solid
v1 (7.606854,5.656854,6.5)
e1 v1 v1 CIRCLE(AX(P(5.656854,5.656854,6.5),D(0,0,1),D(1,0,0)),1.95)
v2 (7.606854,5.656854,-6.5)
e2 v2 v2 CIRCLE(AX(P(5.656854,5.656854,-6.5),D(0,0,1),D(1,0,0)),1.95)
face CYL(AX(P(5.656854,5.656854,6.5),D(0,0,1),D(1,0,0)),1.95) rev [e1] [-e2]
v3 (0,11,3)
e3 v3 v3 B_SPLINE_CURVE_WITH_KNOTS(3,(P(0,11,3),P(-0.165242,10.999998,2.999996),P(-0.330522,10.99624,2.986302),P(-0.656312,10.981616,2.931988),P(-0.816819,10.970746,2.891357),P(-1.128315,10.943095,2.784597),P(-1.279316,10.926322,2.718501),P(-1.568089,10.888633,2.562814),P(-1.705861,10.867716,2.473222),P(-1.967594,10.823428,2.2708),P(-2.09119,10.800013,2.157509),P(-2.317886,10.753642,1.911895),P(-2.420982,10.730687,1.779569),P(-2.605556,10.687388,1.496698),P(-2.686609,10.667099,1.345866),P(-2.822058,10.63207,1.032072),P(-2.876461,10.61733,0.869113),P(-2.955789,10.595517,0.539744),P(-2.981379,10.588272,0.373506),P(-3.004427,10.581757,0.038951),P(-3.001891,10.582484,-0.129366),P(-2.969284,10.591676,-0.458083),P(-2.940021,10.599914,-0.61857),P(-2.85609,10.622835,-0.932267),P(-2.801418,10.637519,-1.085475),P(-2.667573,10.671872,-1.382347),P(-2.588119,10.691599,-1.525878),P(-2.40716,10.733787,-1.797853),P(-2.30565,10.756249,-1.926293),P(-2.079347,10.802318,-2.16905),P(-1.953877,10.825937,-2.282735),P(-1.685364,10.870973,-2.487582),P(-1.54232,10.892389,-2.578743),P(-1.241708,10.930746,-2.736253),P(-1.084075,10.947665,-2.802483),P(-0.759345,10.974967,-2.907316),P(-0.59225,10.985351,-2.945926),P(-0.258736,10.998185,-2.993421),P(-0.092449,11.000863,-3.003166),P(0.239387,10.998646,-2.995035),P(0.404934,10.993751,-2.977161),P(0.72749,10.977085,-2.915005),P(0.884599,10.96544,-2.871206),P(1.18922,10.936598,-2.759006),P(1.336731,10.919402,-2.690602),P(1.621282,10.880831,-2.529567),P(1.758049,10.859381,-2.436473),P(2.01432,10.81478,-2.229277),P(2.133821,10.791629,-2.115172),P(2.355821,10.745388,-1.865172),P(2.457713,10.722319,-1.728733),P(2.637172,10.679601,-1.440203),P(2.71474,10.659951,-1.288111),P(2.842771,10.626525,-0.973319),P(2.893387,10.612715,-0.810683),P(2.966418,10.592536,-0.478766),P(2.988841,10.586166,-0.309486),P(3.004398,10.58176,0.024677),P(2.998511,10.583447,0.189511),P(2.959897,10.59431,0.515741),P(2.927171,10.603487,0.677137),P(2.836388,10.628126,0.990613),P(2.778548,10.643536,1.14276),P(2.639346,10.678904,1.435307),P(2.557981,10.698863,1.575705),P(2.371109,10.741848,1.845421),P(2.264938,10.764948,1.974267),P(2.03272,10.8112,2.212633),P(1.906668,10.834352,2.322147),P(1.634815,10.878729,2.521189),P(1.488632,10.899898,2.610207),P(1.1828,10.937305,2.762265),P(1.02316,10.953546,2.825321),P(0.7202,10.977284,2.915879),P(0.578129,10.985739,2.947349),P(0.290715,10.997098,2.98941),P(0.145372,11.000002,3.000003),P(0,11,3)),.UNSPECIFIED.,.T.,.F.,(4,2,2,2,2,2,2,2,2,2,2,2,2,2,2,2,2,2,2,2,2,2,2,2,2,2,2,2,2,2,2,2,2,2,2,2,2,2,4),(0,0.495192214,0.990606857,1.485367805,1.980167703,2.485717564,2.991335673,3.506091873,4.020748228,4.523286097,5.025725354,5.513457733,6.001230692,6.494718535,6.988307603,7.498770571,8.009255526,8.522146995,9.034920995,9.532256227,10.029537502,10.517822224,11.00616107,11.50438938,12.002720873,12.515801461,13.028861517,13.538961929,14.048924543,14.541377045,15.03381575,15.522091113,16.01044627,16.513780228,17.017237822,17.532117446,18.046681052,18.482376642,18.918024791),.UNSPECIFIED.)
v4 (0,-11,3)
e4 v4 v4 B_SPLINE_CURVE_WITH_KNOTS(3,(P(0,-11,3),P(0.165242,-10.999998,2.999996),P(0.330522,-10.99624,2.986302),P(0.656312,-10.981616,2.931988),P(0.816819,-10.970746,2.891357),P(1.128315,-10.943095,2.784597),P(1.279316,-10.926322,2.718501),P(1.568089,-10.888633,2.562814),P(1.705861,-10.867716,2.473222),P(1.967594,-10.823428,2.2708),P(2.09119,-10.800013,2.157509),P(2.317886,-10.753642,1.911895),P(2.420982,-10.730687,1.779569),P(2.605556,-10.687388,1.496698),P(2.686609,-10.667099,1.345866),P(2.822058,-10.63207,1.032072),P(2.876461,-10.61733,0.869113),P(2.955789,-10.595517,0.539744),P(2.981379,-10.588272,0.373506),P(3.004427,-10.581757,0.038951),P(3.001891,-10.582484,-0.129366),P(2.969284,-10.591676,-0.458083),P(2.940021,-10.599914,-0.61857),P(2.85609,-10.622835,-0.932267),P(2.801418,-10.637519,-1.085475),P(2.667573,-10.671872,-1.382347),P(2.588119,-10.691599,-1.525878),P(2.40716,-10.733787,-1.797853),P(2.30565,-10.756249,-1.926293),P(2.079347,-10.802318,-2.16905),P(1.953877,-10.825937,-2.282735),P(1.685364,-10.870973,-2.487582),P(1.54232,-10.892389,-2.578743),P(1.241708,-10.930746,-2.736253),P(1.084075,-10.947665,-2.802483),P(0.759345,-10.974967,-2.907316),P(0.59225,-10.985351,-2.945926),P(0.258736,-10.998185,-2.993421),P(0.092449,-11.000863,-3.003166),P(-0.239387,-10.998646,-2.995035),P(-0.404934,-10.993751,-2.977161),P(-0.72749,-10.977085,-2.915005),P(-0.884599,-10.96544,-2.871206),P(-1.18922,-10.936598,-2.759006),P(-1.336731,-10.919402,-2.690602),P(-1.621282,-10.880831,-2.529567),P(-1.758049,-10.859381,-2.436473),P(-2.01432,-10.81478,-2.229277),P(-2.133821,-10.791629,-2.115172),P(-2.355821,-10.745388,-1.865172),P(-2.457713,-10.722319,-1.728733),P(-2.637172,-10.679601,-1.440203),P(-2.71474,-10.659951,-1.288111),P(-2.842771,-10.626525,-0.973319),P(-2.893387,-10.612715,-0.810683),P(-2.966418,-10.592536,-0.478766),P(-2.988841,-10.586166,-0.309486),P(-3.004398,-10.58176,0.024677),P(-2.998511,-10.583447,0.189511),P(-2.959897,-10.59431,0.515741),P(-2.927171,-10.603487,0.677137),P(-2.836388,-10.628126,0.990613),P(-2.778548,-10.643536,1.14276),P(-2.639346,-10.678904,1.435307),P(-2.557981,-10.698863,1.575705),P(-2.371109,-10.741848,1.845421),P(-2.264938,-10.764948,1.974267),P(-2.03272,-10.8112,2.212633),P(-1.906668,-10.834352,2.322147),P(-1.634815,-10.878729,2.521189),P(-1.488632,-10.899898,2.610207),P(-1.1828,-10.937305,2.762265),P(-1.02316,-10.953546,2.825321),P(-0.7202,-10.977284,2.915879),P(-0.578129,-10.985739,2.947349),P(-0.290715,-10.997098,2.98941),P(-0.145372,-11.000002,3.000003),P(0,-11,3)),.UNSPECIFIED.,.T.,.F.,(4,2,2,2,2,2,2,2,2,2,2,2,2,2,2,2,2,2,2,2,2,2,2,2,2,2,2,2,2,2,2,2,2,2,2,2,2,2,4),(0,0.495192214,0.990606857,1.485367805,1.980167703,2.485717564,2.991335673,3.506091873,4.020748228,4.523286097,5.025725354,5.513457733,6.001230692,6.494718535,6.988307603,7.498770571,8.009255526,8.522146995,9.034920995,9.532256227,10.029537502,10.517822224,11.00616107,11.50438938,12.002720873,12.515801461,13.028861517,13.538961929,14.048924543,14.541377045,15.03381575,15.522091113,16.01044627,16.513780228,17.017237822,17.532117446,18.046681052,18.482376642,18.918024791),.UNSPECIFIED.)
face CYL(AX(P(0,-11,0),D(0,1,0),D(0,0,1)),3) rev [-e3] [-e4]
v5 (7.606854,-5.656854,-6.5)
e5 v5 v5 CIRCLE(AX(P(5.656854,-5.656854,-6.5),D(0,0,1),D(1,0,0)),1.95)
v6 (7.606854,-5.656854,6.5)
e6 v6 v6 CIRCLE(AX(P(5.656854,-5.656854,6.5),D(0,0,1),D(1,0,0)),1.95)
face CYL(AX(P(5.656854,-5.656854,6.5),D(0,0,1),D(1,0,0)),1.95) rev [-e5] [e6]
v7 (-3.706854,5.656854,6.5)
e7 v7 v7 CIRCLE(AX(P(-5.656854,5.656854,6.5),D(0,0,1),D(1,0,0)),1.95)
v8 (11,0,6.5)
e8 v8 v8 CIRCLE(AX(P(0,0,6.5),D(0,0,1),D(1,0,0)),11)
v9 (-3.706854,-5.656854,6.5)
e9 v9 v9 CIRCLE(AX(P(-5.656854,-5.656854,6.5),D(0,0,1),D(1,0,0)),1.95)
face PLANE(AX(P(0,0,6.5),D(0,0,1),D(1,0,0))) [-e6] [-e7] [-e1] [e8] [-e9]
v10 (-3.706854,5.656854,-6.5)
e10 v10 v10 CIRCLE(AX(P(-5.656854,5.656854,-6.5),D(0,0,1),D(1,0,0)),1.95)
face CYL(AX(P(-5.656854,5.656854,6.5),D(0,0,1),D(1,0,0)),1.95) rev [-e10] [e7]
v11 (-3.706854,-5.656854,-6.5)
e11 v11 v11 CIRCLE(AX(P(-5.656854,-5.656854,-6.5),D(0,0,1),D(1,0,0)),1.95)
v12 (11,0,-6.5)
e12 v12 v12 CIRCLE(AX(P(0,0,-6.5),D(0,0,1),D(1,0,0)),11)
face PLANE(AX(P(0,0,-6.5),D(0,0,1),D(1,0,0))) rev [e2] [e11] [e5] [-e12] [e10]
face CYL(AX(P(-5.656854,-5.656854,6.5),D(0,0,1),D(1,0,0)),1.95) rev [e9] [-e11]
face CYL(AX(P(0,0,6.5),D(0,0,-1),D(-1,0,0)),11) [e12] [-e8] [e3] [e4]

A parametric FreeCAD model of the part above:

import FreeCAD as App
import Part
import Sketcher

V = App.Vector
Q = App.Units.Quantity

doc = App.newDocument("Part")
body = doc.addObject("PartDesign::Body", "Body")

sketch1 = body.newObject("Sketcher::SketchObject", "Sketch")
sketch1.AttachmentSupport = (doc.getObject("XY_Plane"), [""])
sketch1.MapMode = "FlatFace"
sketch1.addGeometry(Part.Circle(V(0, 0, 0), V(0, 0, 1), 11), False)
sketch1.addConstraint([
    Sketcher.Constraint("Coincident", 0, 3, -1, 1),
    Sketcher.Constraint("Diameter", 0, Q("22 mm")),
])
pad1 = body.newObject("PartDesign::Pad", "Pad")
pad1.Profile = sketch1
pad1.Length = 13
pad1.Midplane = True

sketch2 = body.newObject("Sketcher::SketchObject", "Sketch001")
sketch2.AttachmentSupport = (doc.getObject("XZ_Plane"), [""])
sketch2.MapMode = "FlatFace"
sketch2.addGeometry(Part.Circle(V(0, 0, 0), V(0, 0, 1), 3), False)
sketch2.addConstraint([
    Sketcher.Constraint("Coincident", 0, 3, -1, 1),
    Sketcher.Constraint("Diameter", 0, Q("6 mm")),
])
pocket1 = body.newObject("PartDesign::Pocket", "Pocket")
pocket1.Profile = sketch2
pocket1.Type = "ThroughAll"
pocket1.Midplane = True

sketch3 = body.newObject("Sketcher::SketchObject", "Sketch002")
sketch3.AttachmentSupport = (doc.getObject("XY_Plane"), [""])
sketch3.MapMode = "FlatFace"
sketch3.AttachmentOffset = App.Placement(V(0, 0, 6.5), App.Rotation())
sketch3.addGeometry([
    Part.Circle(V(5.7, 5.7, 0), V(0, 0, 1), 1.9),
    Part.Circle(V(-5.7, -5.7, 0), V(0, 0, 1), 1.9),
    Part.Circle(V(-5.7, 5.7, 0), V(0, 0, 1), 1.9),
    Part.Circle(V(5.7, -5.7, 0), V(0, 0, 1), 1.9),
], False)
sketch3.addConstraint([
    Sketcher.Constraint("Equal", 0, 1),
    Sketcher.Constraint("Equal", 1, 2),
    Sketcher.Constraint("Equal", 2, 3),
    Sketcher.Constraint("Symmetric", 0, 3, 1, 3, -1, 1),
    Sketcher.Constraint("Symmetric", 2, 3, 3, 3, -1, 1),
    Sketcher.Constraint("Symmetric", 0, 3, 2, 3, -2),
    Sketcher.Constraint("Diameter", 0, Q("3.9 mm")),
    Sketcher.Constraint("DistanceX", 1, 3, 0, 3, Q("11.313708 mm")),
    Sketcher.Constraint("DistanceY", 1, 3, 0, 3, Q("11.313708 mm")),
])
doc.recompute()
hole = body.newObject("PartDesign::Hole", "Hole")
hole.Profile = sketch3
hole.ThreadType = "None"
hole.Diameter = 3.9
hole.DepthType = "ThroughAll"

doc.recompute()
